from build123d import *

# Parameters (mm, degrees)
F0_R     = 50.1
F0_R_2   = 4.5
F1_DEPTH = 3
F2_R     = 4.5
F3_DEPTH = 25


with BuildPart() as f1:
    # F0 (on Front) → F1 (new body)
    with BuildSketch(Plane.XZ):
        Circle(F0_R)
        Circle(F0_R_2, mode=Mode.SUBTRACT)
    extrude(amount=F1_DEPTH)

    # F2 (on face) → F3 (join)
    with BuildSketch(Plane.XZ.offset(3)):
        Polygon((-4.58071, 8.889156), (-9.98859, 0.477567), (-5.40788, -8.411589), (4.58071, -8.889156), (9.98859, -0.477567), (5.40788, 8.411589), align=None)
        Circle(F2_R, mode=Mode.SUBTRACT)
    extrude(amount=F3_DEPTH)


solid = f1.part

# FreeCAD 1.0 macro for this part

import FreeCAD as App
import Part
import Sketcher
from FreeCAD import Vector


def add_polygon(sketch, points):
    """Adds a closed chain of lines whose ends are joined by coincident constraints."""
    first, n = sketch.GeometryCount, len(points)
    for a, b in zip(points, points[1:] + points[:1]):
        sketch.addGeometry(Part.LineSegment(App.Vector(*a, 0), App.Vector(*b, 0)), False)
    for i in range(n):
        sketch.addConstraint(Sketcher.Constraint("Coincident", first + i, 2, first + (i + 1) % n, 1))

doc = App.newDocument("Part")
params = doc.addObject("Spreadsheet::Sheet", "Params")
for row, (alias, value) in enumerate([
    ("sketch1_diameter", "9 mm"),
    ("sketch1_diameter2", "100.2 mm"),
    ("pad1_length", "3 mm"),
    ("sketch2_diameter", "9 mm"),
    ("sketch2_length", "10 mm"),
    ("pad2_length", "25 mm"),
], start=1):
    params.set(f"A{row}", alias)
    params.set(f"B{row}", "=" + value)
    params.setAlias(f"B{row}", alias)

body = doc.addObject("PartDesign::Body", "Body")

# Sketch on XZ plane
sketch1 = doc.addObject("Sketcher::SketchObject", "Sketch")
body.addObject(sketch1)
sketch1.AttachmentSupport = (doc.XZ_Plane, [""])
sketch1.MapMode = "FlatFace"
sketch1.addGeometry([
    Part.Circle(Vector(0, 0, 0), Vector(0, 0, 1), 50.1),
    Part.Circle(Vector(0, 0, 0), Vector(0, 0, 1), 4.5),
], False)
sketch1.addConstraint([
    Sketcher.Constraint("Coincident", 0, 3, -1, 1),
    Sketcher.Constraint("Coincident", 1, 3, -1, 1),
    Sketcher.Constraint("Diameter", 1, 9.0),
    Sketcher.Constraint("Diameter", 0, 100.2),
])
sketch1.setExpression("Constraints[2]", "Params.sketch1_diameter")
sketch1.setExpression("Constraints[3]", "Params.sketch1_diameter2")
pad1 = doc.addObject("PartDesign::Pad", "Pad")
body.addObject(pad1)
pad1.Profile = sketch1
pad1.setExpression("Length", "Params.pad1_length")

# Sketch on XZ plane
sketch2 = doc.addObject("Sketcher::SketchObject", "Sketch001")
body.addObject(sketch2)
sketch2.AttachmentSupport = (doc.XZ_Plane, [""])
sketch2.MapMode = "FlatFace"
sketch2.AttachmentOffset = App.Placement(Vector(0, 0, 3), App.Rotation())
add_polygon(sketch2, [(-4.6, 8.9), (-10, 0.5), (-5.4, -8.4), (4.6, -8.9), (10, -0.5), (5.4, 8.4)])  # lines 0-5
sketch2.addGeometry(Part.Circle(Vector(0, 0, 0), Vector(0, 0, 1), 4.5), False)  # 6
sketch2.addConstraint([
    Sketcher.Constraint("Coincident", 6, 3, -1, 1),
    Sketcher.Constraint("Symmetric", 0, 2, 3, 2, -1, 1),
    Sketcher.Constraint("Symmetric", 1, 2, 4, 2, -1, 1),
    Sketcher.Constraint("Symmetric", 2, 2, 5, 2, -1, 1),
    Sketcher.Constraint("Equal", 0, 1),
    Sketcher.Constraint("Equal", 1, 2),
    Sketcher.Constraint("Diameter", 6, 9.0),
    Sketcher.Constraint("Distance", 0, 10.0),
    Sketcher.Constraint("DistanceX", 0, 2, 2, 2, 14.5693),
    Sketcher.Constraint("DistanceX", 0, 2, -1, 1, 9.98859),
    Sketcher.Constraint("DistanceX", 1, 2, -1, 1, 5.40788),
])
sketch2.setExpression("Constraints[12]", "Params.sketch2_diameter")
sketch2.setExpression("Constraints[13]", "Params.sketch2_length")
pad2 = doc.addObject("PartDesign::Pad", "Pad001")
body.addObject(pad2)
pad2.Profile = sketch2
pad2.setExpression("Length", "Params.pad2_length")

doc.recompute()
